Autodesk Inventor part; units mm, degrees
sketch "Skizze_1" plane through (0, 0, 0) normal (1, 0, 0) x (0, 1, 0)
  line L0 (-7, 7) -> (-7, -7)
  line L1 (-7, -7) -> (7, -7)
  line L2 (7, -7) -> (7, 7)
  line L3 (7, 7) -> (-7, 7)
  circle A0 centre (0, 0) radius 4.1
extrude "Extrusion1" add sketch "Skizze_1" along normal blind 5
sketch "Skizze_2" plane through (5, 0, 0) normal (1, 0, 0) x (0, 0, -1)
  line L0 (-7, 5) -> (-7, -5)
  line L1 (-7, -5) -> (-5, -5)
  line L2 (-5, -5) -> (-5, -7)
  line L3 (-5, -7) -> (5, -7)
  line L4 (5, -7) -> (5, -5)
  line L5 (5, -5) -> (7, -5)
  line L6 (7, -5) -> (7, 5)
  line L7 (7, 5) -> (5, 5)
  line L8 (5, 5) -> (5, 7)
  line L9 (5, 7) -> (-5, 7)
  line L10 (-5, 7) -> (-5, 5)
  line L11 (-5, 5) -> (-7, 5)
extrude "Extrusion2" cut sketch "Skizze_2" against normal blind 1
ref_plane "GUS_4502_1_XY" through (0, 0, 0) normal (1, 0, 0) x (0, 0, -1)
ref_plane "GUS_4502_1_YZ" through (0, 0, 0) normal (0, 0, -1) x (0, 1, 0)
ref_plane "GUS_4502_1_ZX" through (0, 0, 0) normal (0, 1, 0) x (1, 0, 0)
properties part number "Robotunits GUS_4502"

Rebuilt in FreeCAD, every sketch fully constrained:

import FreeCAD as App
import Part
import Sketcher


def add_polygon(sketch, points):
    """Adds a closed chain of lines whose ends are joined by coincident constraints."""
    first, n = sketch.GeometryCount, len(points)
    for a, b in zip(points, points[1:] + points[:1]):
        sketch.addGeometry(Part.LineSegment(App.Vector(*a, 0), App.Vector(*b, 0)), False)
    for i in range(n):
        sketch.addConstraint(Sketcher.Constraint("Coincident", first + i, 2, first + (i + 1) % n, 1))

doc = App.newDocument("Part")
body = doc.addObject("PartDesign::Body", "Body")

# Sketch on YZ plane
sketch1 = body.newObject("Sketcher::SketchObject", "Sketch")
sketch1.AttachmentSupport = (doc.getObject("YZ_Plane"), [""])
sketch1.MapMode = "FlatFace"
add_polygon(sketch1, [(7, 7), (-7, 7), (-7, -7), (7, -7)])  # lines 0-3
sketch1.addGeometry(Part.Circle(App.Vector(0, 0, 0), App.Vector(0, 0, 1), 4.1), False)  # 4
sketch1.addConstraint([
    Sketcher.Constraint("Horizontal", 0),
    Sketcher.Constraint("Vertical", 1),
    Sketcher.Constraint("Horizontal", 2),
    Sketcher.Constraint("Vertical", 3),
    Sketcher.Constraint("Coincident", 4, 3, -1, 1),
    Sketcher.Constraint("Symmetric", 0, 2, 2, 2, -1, 1),
    Sketcher.Constraint("Equal", 2, 1),
    Sketcher.Constraint("Diameter", 4, 8.2),
    Sketcher.Constraint("DistanceX", 0, 2, 0, 1, 14.0),
])
pad1 = body.newObject("PartDesign::Pad", "Pad")
pad1.Profile = sketch1
pad1.Length = 5

# Sketch on YZ plane
sketch2 = body.newObject("Sketcher::SketchObject", "Sketch001")
sketch2.AttachmentSupport = (doc.getObject("YZ_Plane"), [""])
sketch2.MapMode = "FlatFace"
sketch2.AttachmentOffset = App.Placement(App.Vector(0, 0, 5), App.Rotation())
add_polygon(sketch2, [(5, 5), (5, 7), (-5, 7), (-5, 5), (-7, 5), (-7, -5), (-5, -5), (-5, -7), (5, -7), (5, -5), (7, -5), (7, 5)])  # lines 0-11
sketch2.addConstraint([
    Sketcher.Constraint("Vertical", 0),
    Sketcher.Constraint("Horizontal", 1),
    Sketcher.Constraint("Vertical", 2),
    Sketcher.Constraint("Horizontal", 3),
    Sketcher.Constraint("Vertical", 4),
    Sketcher.Constraint("Horizontal", 5),
    Sketcher.Constraint("Vertical", 6),
    Sketcher.Constraint("Horizontal", 7),
    Sketcher.Constraint("Vertical", 8),
    Sketcher.Constraint("Horizontal", 9),
    Sketcher.Constraint("Vertical", 10),
    Sketcher.Constraint("Horizontal", 11),
    Sketcher.Constraint("Symmetric", 0, 2, 6, 2, -1, 1),
    Sketcher.Constraint("Symmetric", 2, 2, 8, 2, -1, 1),
    Sketcher.Constraint("Symmetric", 4, 2, 10, 2, -1, 1),
    Sketcher.Constraint("Symmetric", 5, 2, 8, 2, -2),
    Sketcher.Constraint("Equal", 11, 0),
    Sketcher.Constraint("Equal", 7, 4),
    Sketcher.Constraint("DistanceX", 1, 2, 1, 1, 10.0),
    Sketcher.Constraint("DistanceX", 3, 2, 3, 1, 2.0),
])
pocket1 = body.newObject("PartDesign::Pocket", "Pocket")
pocket1.Profile = sketch2
pocket1.Length = 1

doc.recompute()
